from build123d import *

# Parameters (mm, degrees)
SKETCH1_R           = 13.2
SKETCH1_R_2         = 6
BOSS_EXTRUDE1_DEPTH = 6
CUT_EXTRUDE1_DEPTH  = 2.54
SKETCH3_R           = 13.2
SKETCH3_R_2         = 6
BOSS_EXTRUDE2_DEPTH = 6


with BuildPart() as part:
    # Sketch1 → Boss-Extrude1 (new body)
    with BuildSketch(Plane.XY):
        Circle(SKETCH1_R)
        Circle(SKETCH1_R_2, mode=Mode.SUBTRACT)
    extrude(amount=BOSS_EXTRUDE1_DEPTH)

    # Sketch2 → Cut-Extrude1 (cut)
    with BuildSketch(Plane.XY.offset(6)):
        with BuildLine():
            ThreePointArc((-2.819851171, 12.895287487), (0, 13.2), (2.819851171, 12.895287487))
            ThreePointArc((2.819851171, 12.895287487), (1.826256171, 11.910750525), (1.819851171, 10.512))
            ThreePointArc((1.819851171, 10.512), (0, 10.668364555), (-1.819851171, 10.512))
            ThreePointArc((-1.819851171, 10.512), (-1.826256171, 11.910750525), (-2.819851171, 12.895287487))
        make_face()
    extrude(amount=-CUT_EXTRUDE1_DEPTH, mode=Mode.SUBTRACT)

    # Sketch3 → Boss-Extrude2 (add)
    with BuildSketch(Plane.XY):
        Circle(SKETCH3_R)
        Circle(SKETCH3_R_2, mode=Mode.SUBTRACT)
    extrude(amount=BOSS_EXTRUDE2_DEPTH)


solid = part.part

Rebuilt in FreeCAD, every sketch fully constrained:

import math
import FreeCAD as App
import Part
import Sketcher

V = App.Vector
Q = App.Units.Quantity

doc = App.newDocument("Part")
body = doc.addObject("PartDesign::Body", "Body")

sketch1 = body.newObject("Sketcher::SketchObject", "Sketch")
sketch1.AttachmentSupport = (doc.getObject("XY_Plane"), [""])
sketch1.MapMode = "FlatFace"
sketch1.addGeometry([
    Part.Circle(V(0, 0, 0), V(0, 0, 1), 13),
    Part.Circle(V(0, 0, 0), V(0, 0, 1), 6),
], False)
sketch1.addConstraint([
    Sketcher.Constraint("Coincident", 0, 3, -1, 1),
    Sketcher.Constraint("Coincident", 1, 3, -1, 1),
    Sketcher.Constraint("Diameter", 1, Q("12 mm")),
    Sketcher.Constraint("Diameter", 0, Q("26.4 mm")),
])
pad1 = body.newObject("PartDesign::Pad", "Pad")
pad1.Profile = sketch1
pad1.Length = 6

sketch2 = body.newObject("Sketcher::SketchObject", "Sketch001")
sketch2.AttachmentSupport = (doc.getObject("XY_Plane"), [""])
sketch2.MapMode = "FlatFace"
sketch2.AttachmentOffset = App.Placement(V(0, 0, 6), App.Rotation())
sketch2.addGeometry([
    Part.ArcOfCircle(Part.Circle(V(0, 0, 0), V(0, 0, 1), 13.2), math.radians(78), math.radians(102)),
    Part.ArcOfCircle(Part.Circle(V(-3.5, 11.2, 0), V(0, 0, 1), 1.8), math.radians(-22), math.radians(68)),
    Part.ArcOfCircle(Part.Circle(V(0, 0, 0), V(0, 0, 1), 10.7), math.radians(80.18), math.radians(99.82)),
    Part.ArcOfCircle(Part.Circle(V(3.5, 11.2, 0), V(0, 0, 1), 1.8), math.radians(112), math.radians(202)),
], False)
sketch2.addConstraint([
    Sketcher.Constraint("Coincident", 0, 2, 1, 2),
    Sketcher.Constraint("Coincident", 1, 1, 2, 2),
    Sketcher.Constraint("Coincident", 2, 1, 3, 2),
    Sketcher.Constraint("Coincident", 3, 1, 0, 1),
    Sketcher.Constraint("Coincident", 0, 3, -1, 1),
    Sketcher.Constraint("Coincident", 2, 3, -1, 1),
    Sketcher.Constraint("Equal", 1, 3),
    Sketcher.Constraint("Symmetric", 1, 3, 3, 3, -2),
    Sketcher.Constraint("Radius", 0, Q("13.2 mm")),
    Sketcher.Constraint("DistanceX", 0, 2, 1, 1, Q("1 mm")),
    Sketcher.Constraint("DistanceY", -1, 1, 1, 1, Q("10.512 mm")),
    Sketcher.Constraint("Radius", 1, Q("1.827575 mm")),
    Sketcher.Constraint("Radius", 2, Q("10.668365 mm")),
])
pocket1 = body.newObject("PartDesign::Pocket", "Pocket")
pocket1.Profile = sketch2
pocket1.Length = 2.54

sketch3 = body.newObject("Sketcher::SketchObject", "Sketch002")
sketch3.AttachmentSupport = (doc.getObject("XY_Plane"), [""])
sketch3.MapMode = "FlatFace"
sketch3.addGeometry([
    Part.Circle(V(0, 0, 0), V(0, 0, 1), 13),
    Part.Circle(V(0, 0, 0), V(0, 0, 1), 6),
], False)
sketch3.addConstraint([
    Sketcher.Constraint("Coincident", 0, 3, -1, 1),
    Sketcher.Constraint("Coincident", 1, 3, -1, 1),
    Sketcher.Constraint("Diameter", 1, Q("12 mm")),
    Sketcher.Constraint("Diameter", 0, Q("26.4 mm")),
])
pad2 = body.newObject("PartDesign::Pad", "Pad001")
pad2.Profile = sketch3
pad2.Length = 6

doc.recompute()
